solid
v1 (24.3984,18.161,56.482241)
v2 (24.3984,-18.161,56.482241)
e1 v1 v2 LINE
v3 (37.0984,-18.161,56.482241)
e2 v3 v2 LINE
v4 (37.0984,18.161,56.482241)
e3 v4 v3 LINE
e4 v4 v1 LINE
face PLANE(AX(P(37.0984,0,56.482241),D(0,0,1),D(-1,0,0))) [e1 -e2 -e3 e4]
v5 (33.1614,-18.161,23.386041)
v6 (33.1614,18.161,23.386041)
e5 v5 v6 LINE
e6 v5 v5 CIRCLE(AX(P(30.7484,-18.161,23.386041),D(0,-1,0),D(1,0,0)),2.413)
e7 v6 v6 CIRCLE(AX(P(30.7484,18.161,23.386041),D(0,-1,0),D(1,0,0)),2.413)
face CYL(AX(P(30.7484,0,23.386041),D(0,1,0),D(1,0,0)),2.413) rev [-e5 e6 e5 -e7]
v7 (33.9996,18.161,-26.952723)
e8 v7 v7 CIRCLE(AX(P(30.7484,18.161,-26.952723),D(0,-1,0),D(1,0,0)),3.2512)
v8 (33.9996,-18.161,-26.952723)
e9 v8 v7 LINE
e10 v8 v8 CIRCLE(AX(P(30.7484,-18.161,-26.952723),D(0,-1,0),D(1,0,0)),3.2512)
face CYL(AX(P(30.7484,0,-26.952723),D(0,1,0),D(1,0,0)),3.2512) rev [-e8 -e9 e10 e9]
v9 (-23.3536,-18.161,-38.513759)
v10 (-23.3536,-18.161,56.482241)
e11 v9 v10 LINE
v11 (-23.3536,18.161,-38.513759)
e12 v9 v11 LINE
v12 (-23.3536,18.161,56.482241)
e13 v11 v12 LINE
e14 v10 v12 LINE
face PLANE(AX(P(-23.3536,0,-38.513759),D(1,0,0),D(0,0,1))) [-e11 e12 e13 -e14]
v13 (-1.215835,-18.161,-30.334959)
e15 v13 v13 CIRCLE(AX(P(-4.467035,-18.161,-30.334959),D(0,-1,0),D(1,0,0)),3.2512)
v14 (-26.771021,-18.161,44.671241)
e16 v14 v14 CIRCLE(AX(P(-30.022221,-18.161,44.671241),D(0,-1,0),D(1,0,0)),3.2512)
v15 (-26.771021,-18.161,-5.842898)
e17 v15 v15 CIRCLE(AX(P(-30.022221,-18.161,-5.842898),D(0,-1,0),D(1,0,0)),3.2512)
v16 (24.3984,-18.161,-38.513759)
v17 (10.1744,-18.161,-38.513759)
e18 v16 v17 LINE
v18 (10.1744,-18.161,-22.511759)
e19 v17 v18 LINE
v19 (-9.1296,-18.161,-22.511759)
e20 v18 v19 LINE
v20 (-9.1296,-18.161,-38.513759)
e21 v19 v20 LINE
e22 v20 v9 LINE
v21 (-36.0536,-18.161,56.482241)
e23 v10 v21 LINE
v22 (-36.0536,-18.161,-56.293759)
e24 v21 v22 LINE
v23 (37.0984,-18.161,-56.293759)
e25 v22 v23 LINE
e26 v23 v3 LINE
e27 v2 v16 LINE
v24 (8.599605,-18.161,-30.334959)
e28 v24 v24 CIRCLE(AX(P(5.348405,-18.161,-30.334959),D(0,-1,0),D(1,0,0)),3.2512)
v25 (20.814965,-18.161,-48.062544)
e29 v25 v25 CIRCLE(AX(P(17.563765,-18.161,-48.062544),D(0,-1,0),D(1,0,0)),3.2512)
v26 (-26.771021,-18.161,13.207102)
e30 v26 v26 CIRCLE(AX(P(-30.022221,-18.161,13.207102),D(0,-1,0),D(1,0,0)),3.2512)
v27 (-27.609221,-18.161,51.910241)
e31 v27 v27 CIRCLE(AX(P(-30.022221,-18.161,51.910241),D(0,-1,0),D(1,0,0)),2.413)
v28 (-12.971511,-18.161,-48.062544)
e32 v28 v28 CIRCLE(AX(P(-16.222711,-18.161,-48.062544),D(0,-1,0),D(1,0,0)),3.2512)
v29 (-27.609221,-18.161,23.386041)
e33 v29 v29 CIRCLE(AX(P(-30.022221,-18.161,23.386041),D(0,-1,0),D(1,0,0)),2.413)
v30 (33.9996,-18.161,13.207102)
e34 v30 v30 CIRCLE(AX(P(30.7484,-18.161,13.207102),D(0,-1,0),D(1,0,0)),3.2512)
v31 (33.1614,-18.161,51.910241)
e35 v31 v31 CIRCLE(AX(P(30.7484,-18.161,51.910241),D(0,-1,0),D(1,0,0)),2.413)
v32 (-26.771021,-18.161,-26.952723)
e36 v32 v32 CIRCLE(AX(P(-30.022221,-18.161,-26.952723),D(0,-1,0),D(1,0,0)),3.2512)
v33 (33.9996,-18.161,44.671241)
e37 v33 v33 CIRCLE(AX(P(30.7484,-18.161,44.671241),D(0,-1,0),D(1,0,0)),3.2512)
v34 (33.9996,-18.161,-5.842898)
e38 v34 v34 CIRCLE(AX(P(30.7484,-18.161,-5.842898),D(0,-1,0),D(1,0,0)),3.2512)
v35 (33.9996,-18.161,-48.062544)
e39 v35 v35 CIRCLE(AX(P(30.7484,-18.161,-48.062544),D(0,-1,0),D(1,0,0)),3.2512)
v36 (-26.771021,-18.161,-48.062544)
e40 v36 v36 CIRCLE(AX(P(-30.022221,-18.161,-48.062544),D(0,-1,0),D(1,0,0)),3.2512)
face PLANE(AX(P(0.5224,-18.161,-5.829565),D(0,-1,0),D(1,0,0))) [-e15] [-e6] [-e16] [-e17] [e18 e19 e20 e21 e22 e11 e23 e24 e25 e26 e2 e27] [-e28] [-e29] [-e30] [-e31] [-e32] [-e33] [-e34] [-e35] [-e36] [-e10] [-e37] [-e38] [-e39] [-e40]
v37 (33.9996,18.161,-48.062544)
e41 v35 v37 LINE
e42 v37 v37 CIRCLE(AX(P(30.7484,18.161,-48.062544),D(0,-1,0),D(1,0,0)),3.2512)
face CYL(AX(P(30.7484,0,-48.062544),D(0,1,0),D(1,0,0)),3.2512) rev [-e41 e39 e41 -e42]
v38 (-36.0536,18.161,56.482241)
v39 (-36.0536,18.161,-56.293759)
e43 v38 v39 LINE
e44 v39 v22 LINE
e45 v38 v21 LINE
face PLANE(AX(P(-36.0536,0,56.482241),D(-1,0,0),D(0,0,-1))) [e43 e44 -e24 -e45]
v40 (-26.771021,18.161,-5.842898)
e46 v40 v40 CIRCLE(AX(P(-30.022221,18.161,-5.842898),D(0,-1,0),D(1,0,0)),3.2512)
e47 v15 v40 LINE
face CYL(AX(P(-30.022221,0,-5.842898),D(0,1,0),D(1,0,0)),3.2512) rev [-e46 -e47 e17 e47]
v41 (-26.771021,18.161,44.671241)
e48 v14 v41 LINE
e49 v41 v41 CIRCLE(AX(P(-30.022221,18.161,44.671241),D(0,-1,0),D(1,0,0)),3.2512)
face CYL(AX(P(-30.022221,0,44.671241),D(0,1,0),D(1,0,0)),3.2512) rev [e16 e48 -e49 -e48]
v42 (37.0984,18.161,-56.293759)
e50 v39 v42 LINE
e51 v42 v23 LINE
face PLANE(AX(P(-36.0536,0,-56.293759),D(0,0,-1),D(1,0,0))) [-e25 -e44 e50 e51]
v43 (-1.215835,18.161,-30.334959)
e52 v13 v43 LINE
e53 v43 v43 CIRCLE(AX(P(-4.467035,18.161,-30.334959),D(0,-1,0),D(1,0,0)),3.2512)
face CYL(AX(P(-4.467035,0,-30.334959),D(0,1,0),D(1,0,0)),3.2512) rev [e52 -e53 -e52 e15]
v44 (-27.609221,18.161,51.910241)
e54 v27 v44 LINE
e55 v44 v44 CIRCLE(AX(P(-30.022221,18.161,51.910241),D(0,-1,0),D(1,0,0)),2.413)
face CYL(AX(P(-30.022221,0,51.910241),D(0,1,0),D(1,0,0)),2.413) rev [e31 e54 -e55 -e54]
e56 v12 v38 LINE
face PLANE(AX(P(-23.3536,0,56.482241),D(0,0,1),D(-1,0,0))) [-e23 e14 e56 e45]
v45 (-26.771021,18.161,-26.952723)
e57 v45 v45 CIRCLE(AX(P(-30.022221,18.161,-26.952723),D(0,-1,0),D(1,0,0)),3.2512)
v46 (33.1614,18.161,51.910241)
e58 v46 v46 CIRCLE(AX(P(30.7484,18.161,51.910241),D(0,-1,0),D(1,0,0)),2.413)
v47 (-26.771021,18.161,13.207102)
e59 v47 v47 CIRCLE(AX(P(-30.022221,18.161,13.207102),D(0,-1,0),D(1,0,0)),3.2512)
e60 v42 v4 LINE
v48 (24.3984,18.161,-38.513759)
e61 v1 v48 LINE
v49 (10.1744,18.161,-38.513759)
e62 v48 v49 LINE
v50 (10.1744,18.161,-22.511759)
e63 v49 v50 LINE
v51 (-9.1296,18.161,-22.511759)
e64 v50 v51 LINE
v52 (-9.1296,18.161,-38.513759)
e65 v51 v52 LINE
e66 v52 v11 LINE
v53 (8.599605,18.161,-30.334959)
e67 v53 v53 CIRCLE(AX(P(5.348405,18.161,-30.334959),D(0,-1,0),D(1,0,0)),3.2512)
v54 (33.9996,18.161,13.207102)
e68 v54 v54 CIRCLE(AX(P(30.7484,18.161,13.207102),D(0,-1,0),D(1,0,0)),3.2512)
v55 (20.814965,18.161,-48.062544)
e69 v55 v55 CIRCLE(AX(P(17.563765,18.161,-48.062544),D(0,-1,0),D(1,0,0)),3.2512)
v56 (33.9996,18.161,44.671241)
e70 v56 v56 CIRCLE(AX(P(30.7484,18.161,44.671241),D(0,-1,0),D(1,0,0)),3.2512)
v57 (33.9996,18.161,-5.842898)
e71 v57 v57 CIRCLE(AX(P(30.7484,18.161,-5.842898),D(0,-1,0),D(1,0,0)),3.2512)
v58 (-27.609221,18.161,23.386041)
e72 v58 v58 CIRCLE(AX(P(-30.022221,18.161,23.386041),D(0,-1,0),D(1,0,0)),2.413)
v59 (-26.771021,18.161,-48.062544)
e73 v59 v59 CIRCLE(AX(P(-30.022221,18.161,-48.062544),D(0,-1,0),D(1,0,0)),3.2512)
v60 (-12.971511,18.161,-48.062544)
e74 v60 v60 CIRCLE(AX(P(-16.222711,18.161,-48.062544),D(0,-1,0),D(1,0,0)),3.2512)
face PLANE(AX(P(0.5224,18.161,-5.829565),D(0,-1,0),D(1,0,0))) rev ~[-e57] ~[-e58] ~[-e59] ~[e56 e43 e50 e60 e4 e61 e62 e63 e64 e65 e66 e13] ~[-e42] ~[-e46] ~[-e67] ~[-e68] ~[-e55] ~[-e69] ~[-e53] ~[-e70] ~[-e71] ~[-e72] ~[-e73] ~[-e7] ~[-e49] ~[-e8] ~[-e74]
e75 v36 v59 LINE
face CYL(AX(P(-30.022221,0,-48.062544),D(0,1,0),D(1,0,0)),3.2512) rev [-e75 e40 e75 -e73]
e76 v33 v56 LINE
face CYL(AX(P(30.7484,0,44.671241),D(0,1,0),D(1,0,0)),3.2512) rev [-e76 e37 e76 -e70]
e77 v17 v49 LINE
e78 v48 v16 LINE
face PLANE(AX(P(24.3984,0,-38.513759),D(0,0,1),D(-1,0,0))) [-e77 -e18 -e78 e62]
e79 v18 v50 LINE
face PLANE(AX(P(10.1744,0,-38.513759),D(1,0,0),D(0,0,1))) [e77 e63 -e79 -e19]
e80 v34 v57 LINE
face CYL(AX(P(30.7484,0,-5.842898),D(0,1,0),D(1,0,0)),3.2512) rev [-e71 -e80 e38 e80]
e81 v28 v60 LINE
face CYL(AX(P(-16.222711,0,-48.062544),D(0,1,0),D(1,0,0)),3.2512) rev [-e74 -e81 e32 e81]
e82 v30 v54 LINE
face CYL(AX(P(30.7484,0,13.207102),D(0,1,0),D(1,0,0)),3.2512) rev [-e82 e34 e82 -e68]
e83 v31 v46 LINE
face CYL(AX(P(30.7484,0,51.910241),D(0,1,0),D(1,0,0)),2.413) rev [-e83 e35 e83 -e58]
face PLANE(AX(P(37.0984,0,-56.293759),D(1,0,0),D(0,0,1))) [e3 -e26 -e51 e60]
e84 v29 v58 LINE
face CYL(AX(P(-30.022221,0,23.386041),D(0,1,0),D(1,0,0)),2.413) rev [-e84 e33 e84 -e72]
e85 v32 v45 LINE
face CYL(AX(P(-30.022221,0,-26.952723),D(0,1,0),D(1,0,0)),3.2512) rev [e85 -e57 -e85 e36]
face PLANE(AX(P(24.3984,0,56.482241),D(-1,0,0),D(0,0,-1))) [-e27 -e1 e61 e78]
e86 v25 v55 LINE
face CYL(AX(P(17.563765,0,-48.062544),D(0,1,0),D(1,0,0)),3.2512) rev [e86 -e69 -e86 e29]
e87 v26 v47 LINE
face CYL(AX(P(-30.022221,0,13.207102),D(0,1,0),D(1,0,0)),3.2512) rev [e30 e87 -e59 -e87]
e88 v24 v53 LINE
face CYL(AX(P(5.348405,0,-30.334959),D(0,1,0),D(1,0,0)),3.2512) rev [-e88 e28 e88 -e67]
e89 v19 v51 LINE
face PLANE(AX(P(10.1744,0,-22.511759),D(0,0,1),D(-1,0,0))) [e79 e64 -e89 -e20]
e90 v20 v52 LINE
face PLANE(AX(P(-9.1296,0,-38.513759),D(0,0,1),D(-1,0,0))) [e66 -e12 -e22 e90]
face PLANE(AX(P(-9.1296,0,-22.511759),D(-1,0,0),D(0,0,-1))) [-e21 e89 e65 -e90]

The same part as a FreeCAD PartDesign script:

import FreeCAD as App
import Part
import Sketcher

V = App.Vector
Q = App.Units.Quantity

doc = App.newDocument("Part")
body = doc.addObject("PartDesign::Body", "Body")

sketch1 = body.newObject("Sketcher::SketchObject", "Sketch")
sketch1.AttachmentSupport = (doc.getObject("XZ_Plane"), [""])
sketch1.MapMode = "FlatFace"
sketch1.addGeometry(Part.LineSegment(V(-23.3536, 56.482241, 0), V(-36.0536, 56.482241, 0)), False)
sketch1.addGeometry(Part.LineSegment(V(-36.0536, 56.482241, 0), V(-36.0536, -56.293759, 0)), False)
sketch1.addGeometry(Part.LineSegment(V(-36.0536, -56.293759, 0), V(37.0984, -56.293759, 0)), False)
sketch1.addGeometry(Part.LineSegment(V(37.0984, -56.293759, 0), V(37.0984, 56.482241, 0)), False)
sketch1.addGeometry(Part.LineSegment(V(37.0984, 56.482241, 0), V(24.3984, 56.482241, 0)), False)
sketch1.addGeometry(Part.LineSegment(V(24.3984, 56.482241, 0), V(24.3984, -38.513759, 0)), False)
sketch1.addGeometry(Part.LineSegment(V(24.3984, -38.513759, 0), V(10.1744, -38.513759, 0)), False)
sketch1.addGeometry(Part.LineSegment(V(10.1744, -38.513759, 0), V(10.1744, -22.511759, 0)), False)
sketch1.addGeometry(Part.LineSegment(V(10.1744, -22.511759, 0), V(-9.1296, -22.511759, 0)), False)
sketch1.addGeometry(Part.LineSegment(V(-9.1296, -22.511759, 0), V(-9.1296, -38.513759, 0)), False)
sketch1.addGeometry(Part.LineSegment(V(-9.1296, -38.513759, 0), V(-23.3536, -38.513759, 0)), False)
sketch1.addGeometry(Part.LineSegment(V(-23.3536, -38.513759, 0), V(-23.3536, 56.482241, 0)), False)
sketch1.addGeometry(Part.Circle(V(-30.022221, -48.062544, 0), V(0, 0, 1), 3.2512), False)
sketch1.addGeometry(Part.Circle(V(-30.022221, -26.952723, 0), V(0, 0, 1), 3.2512), False)
sketch1.addGeometry(Part.Circle(V(-16.222711, -48.062544, 0), V(0, 0, 1), 3.2512), False)
sketch1.addGeometry(Part.Circle(V(-4.467035, -30.334959, 0), V(0, 0, 1), 3.2512), False)
sketch1.addGeometry(Part.Circle(V(-30.022221, -5.842898, 0), V(0, 0, 1), 3.2512), False)
sketch1.addGeometry(Part.Circle(V(5.348405, -30.334959, 0), V(0, 0, 1), 3.2512), False)
sketch1.addGeometry(Part.Circle(V(17.563765, -48.062544, 0), V(0, 0, 1), 3.2512), False)
sketch1.addGeometry(Part.Circle(V(30.7484, -48.062544, 0), V(0, 0, 1), 3.2512), False)
sketch1.addGeometry(Part.Circle(V(30.7484, -26.952723, 0), V(0, 0, 1), 3.2512), False)
sketch1.addGeometry(Part.Circle(V(30.7484, -5.842898, 0), V(0, 0, 1), 3.2512), False)
sketch1.addGeometry(Part.Circle(V(-30.022221, 13.207102, 0), V(0, 0, 1), 3.2512), False)
sketch1.addGeometry(Part.Circle(V(-30.022221, 23.386041, 0), V(0, 0, 1), 2.413), False)
sketch1.addGeometry(Part.Circle(V(-30.022221, 44.671241, 0), V(0, 0, 1), 3.2512), False)
sketch1.addGeometry(Part.Circle(V(-30.022221, 51.910241, 0), V(0, 0, 1), 2.413), False)
sketch1.addGeometry(Part.Circle(V(30.7484, 13.207102, 0), V(0, 0, 1), 3.2512), False)
sketch1.addGeometry(Part.Circle(V(30.7484, 23.386041, 0), V(0, 0, 1), 2.413), False)
sketch1.addGeometry(Part.Circle(V(30.7484, 44.671241, 0), V(0, 0, 1), 3.2512), False)
sketch1.addGeometry(Part.Circle(V(30.7484, 51.910241, 0), V(0, 0, 1), 2.413), False)
sketch1.addConstraint(Sketcher.Constraint("Coincident", 0, 2, 1, 1))
sketch1.addConstraint(Sketcher.Constraint("Coincident", 1, 2, 2, 1))
sketch1.addConstraint(Sketcher.Constraint("Coincident", 2, 2, 3, 1))
sketch1.addConstraint(Sketcher.Constraint("Coincident", 3, 2, 4, 1))
sketch1.addConstraint(Sketcher.Constraint("Coincident", 4, 2, 5, 1))
sketch1.addConstraint(Sketcher.Constraint("Coincident", 5, 2, 6, 1))
sketch1.addConstraint(Sketcher.Constraint("Coincident", 6, 2, 7, 1))
sketch1.addConstraint(Sketcher.Constraint("Coincident", 7, 2, 8, 1))
sketch1.addConstraint(Sketcher.Constraint("Coincident", 8, 2, 9, 1))
sketch1.addConstraint(Sketcher.Constraint("Coincident", 9, 2, 10, 1))
sketch1.addConstraint(Sketcher.Constraint("Coincident", 10, 2, 11, 1))
sketch1.addConstraint(Sketcher.Constraint("Coincident", 11, 2, 0, 1))
sketch1.addConstraint(Sketcher.Constraint("Horizontal", 0))
sketch1.addConstraint(Sketcher.Constraint("Vertical", 1))
sketch1.addConstraint(Sketcher.Constraint("Horizontal", 2))
sketch1.addConstraint(Sketcher.Constraint("Vertical", 3))
sketch1.addConstraint(Sketcher.Constraint("Horizontal", 4))
sketch1.addConstraint(Sketcher.Constraint("Vertical", 5))
sketch1.addConstraint(Sketcher.Constraint("Horizontal", 6))
sketch1.addConstraint(Sketcher.Constraint("Vertical", 7))
sketch1.addConstraint(Sketcher.Constraint("Horizontal", 8))
sketch1.addConstraint(Sketcher.Constraint("Vertical", 9))
sketch1.addConstraint(Sketcher.Constraint("Horizontal", 10))
sketch1.addConstraint(Sketcher.Constraint("Vertical", 11))
sketch1.addConstraint(Sketcher.Constraint("Equal", 12, 13))
sketch1.addConstraint(Sketcher.Constraint("Equal", 13, 14))
sketch1.addConstraint(Sketcher.Constraint("Equal", 14, 15))
sketch1.addConstraint(Sketcher.Constraint("Equal", 15, 16))
sketch1.addConstraint(Sketcher.Constraint("Equal", 16, 17))
sketch1.addConstraint(Sketcher.Constraint("Equal", 17, 18))
sketch1.addConstraint(Sketcher.Constraint("Equal", 18, 19))
sketch1.addConstraint(Sketcher.Constraint("Equal", 19, 20))
sketch1.addConstraint(Sketcher.Constraint("Equal", 20, 21))
sketch1.addConstraint(Sketcher.Constraint("Equal", 21, 22))
sketch1.addConstraint(Sketcher.Constraint("Equal", 22, 24))
sketch1.addConstraint(Sketcher.Constraint("Equal", 23, 25))
sketch1.addConstraint(Sketcher.Constraint("Equal", 24, 26))
sketch1.addConstraint(Sketcher.Constraint("Equal", 25, 27))
sketch1.addConstraint(Sketcher.Constraint("Equal", 26, 28))
sketch1.addConstraint(Sketcher.Constraint("Equal", 27, 29))
sketch1.addConstraint(Sketcher.Constraint("Horizontal", 12, 3, 14, 3))
sketch1.addConstraint(Sketcher.Constraint("Horizontal", 15, 3, 17, 3))
sketch1.addConstraint(Sketcher.Constraint("Horizontal", 14, 3, 18, 3))
sketch1.addConstraint(Sketcher.Constraint("Horizontal", 18, 3, 19, 3))
sketch1.addConstraint(Sketcher.Constraint("Horizontal", 13, 3, 20, 3))
sketch1.addConstraint(Sketcher.Constraint("Horizontal", 16, 3, 21, 3))
sketch1.addConstraint(Sketcher.Constraint("Horizontal", 22, 3, 26, 3))
sketch1.addConstraint(Sketcher.Constraint("Horizontal", 23, 3, 27, 3))
sketch1.addConstraint(Sketcher.Constraint("Horizontal", 24, 3, 28, 3))
sketch1.addConstraint(Sketcher.Constraint("Horizontal", 25, 3, 29, 3))
sketch1.addConstraint(Sketcher.Constraint("Horizontal", 0, 2, 3, 2))
sketch1.addConstraint(Sketcher.Constraint("Horizontal", 6, 2, 9, 2))
sketch1.addConstraint(Sketcher.Constraint("Vertical", 12, 3, 13, 3))
sketch1.addConstraint(Sketcher.Constraint("Vertical", 13, 3, 16, 3))
sketch1.addConstraint(Sketcher.Constraint("Vertical", 19, 3, 20, 3))
sketch1.addConstraint(Sketcher.Constraint("Vertical", 20, 3, 21, 3))
sketch1.addConstraint(Sketcher.Constraint("Vertical", 16, 3, 22, 3))
sketch1.addConstraint(Sketcher.Constraint("Vertical", 22, 3, 23, 3))
sketch1.addConstraint(Sketcher.Constraint("Vertical", 23, 3, 24, 3))
sketch1.addConstraint(Sketcher.Constraint("Vertical", 24, 3, 25, 3))
sketch1.addConstraint(Sketcher.Constraint("Vertical", 21, 3, 26, 3))
sketch1.addConstraint(Sketcher.Constraint("Vertical", 26, 3, 27, 3))
sketch1.addConstraint(Sketcher.Constraint("Vertical", 27, 3, 28, 3))
sketch1.addConstraint(Sketcher.Constraint("Vertical", 28, 3, 29, 3))
sketch1.addConstraint(Sketcher.Constraint("Equal", 0, 4))
sketch1.addConstraint(Sketcher.Constraint("Equal", 6, 10))
sketch1.addConstraint(Sketcher.Constraint("Diameter", 23, Q("0.19 in")))
sketch1.addConstraint(Sketcher.Constraint("Diameter", 12, Q("0.256 in")))
sketch1.addConstraint(Sketcher.Constraint("DistanceX", 0, 2, 0, 1, Q("0.5 in")))
sketch1.addConstraint(Sketcher.Constraint("DistanceX", 17, 3, 19, 3, Q("0.9999998 in")))
sketch1.addConstraint(Sketcher.Constraint("DistanceX", 2, 1, 2, 2, Q("2.88 in")))
sketch1.addConstraint(Sketcher.Constraint("DistanceX", 6, 2, 6, 1, Q("0.56 in")))
sketch1.addConstraint(Sketcher.Constraint("DistanceY", 1, 2, 1, 1, Q("4.44 in")))
sketch1.addConstraint(Sketcher.Constraint("DistanceY", 5, 2, 5, 1, Q("3.74 in")))
sketch1.addConstraint(Sketcher.Constraint("DistanceY", 7, 1, 7, 2, Q("0.63 in")))
sketch1.addConstraint(Sketcher.Constraint("DistanceY", 16, 3, 22, 3, Q("0.75 in")))
sketch1.addConstraint(Sketcher.Constraint("DistanceY", 25, 3, 0, 2, Q("0.18 in")))
sketch1.addConstraint(Sketcher.Constraint("DistanceX", 1, 2, 17, 3, Q("1.6300002 in")))
sketch1.addConstraint(Sketcher.Constraint("DistanceY", 15, 3, 23, 3, Q("2.115 in")))
sketch1.addConstraint(Sketcher.Constraint("DistanceY", 23, 3, 24, 3, Q("0.838 in")))
sketch1.addConstraint(Sketcher.Constraint("DistanceY", 24, 3, 25, 3, Q("0.285 in")))
sketch1.addConstraint(Sketcher.Constraint("DistanceX", -1, 1, 19, 3, 30.7484))
sketch1.addConstraint(Sketcher.Constraint("DistanceX", 15, 3, 18, 3, 22.0308))
sketch1.addConstraint(Sketcher.Constraint("DistanceX", 12, 3, -1, 1, 30.022221))
sketch1.addConstraint(Sketcher.Constraint("DistanceX", 14, 3, -1, 1, 16.222711))
sketch1.addConstraint(Sketcher.Constraint("DistanceY", 15, 3, -1, 1, 30.334959))
sketch1.addConstraint(Sketcher.Constraint("DistanceY", 12, 3, 13, 3, 21.109821))
sketch1.addConstraint(Sketcher.Constraint("DistanceY", 15, 3, 16, 3, 24.492061))
sketch1.addConstraint(Sketcher.Constraint("DistanceX", 15, 3, 17, 3, 9.81544))
sketch1.addConstraint(Sketcher.Constraint("DistanceY", 12, 3, -1, 1, 48.062544))
pad1 = body.newObject("PartDesign::Pad", "Pad")
pad1.Profile = sketch1
pad1.Length = Q("1.43 in")
pad1.Midplane = True

doc.recompute()
